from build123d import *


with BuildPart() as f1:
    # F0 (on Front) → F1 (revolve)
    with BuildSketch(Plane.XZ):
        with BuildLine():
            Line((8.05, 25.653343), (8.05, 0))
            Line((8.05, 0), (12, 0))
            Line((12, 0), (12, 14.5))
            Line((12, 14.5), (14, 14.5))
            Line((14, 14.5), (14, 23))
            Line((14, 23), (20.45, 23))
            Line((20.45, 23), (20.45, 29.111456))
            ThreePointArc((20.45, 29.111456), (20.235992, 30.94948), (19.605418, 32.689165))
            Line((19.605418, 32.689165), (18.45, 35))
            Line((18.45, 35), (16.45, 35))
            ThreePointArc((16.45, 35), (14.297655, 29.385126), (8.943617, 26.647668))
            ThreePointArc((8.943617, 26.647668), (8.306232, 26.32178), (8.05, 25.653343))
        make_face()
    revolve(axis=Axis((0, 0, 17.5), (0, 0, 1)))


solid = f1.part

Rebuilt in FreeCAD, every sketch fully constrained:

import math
import FreeCAD as App
import Part
import Sketcher
from FreeCAD import Vector

doc = App.newDocument("Part")
body = doc.addObject("PartDesign::Body", "Body")

# Sketch on XZ plane
sketch1 = body.newObject("Sketcher::SketchObject", "Sketch")
sketch1.AttachmentSupport = (doc.getObject("XZ_Plane"), [""])
sketch1.MapMode = "FlatFace"
sketch1.addGeometry(Part.LineSegment(Vector(8.1, 25.7, 0), Vector(8.1, 0, 0)), False)
sketch1.addGeometry(Part.LineSegment(Vector(8.1, 0, 0), Vector(12, 0, 0)), False)
sketch1.addGeometry(Part.LineSegment(Vector(12, 0, 0), Vector(12, 14.5, 0)), False)
sketch1.addGeometry(Part.LineSegment(Vector(12, 14.5, 0), Vector(14, 14.5, 0)), False)
sketch1.addGeometry(Part.LineSegment(Vector(14, 14.5, 0), Vector(14, 23, 0)), False)
sketch1.addGeometry(Part.LineSegment(Vector(14, 23, 0), Vector(20.4, 23, 0)), False)
sketch1.addGeometry(Part.LineSegment(Vector(20.4, 23, 0), Vector(20.4, 29.1, 0)), False)
sketch1.addGeometry(Part.ArcOfCircle(Part.Circle(Vector(12.4, 29.1, 0), Vector(0, 0, 1), 8), math.radians(0), math.radians(27)), False)
sketch1.addGeometry(Part.LineSegment(Vector(19.6, 32.7, 0), Vector(18.4, 35, 0)), False)
sketch1.addGeometry(Part.LineSegment(Vector(18.4, 35, 0), Vector(16.4, 35, 0)), False)
sketch1.addGeometry(Part.ArcOfCircle(Part.Circle(Vector(8.1, 35, 0), Vector(0, 0, 1), 8.4), math.radians(-84), math.radians(0)), False)
sketch1.addGeometry(Part.ArcOfCircle(Part.Circle(Vector(9.1, 25.7, 0), Vector(0, 0, 1), 1), math.radians(96), math.radians(180)), False)
sketch1.addConstraint(Sketcher.Constraint("Coincident", 0, 2, 1, 1))
sketch1.addConstraint(Sketcher.Constraint("Coincident", 1, 2, 2, 1))
sketch1.addConstraint(Sketcher.Constraint("Coincident", 2, 2, 3, 1))
sketch1.addConstraint(Sketcher.Constraint("Coincident", 3, 2, 4, 1))
sketch1.addConstraint(Sketcher.Constraint("Coincident", 4, 2, 5, 1))
sketch1.addConstraint(Sketcher.Constraint("Coincident", 5, 2, 6, 1))
sketch1.addConstraint(Sketcher.Constraint("Tangent", 6, 2, 7, 1))
sketch1.addConstraint(Sketcher.Constraint("Tangent", 7, 2, 8, 1))
sketch1.addConstraint(Sketcher.Constraint("Coincident", 8, 2, 9, 1))
sketch1.addConstraint(Sketcher.Constraint("Coincident", 9, 2, 10, 2))
sketch1.addConstraint(Sketcher.Constraint("Tangent", 10, 1, 11, 1))
sketch1.addConstraint(Sketcher.Constraint("Tangent", 11, 2, 0, 1))
sketch1.addConstraint(Sketcher.Constraint("Vertical", 0))
sketch1.addConstraint(Sketcher.Constraint("Horizontal", 1))
sketch1.addConstraint(Sketcher.Constraint("Vertical", 2))
sketch1.addConstraint(Sketcher.Constraint("Horizontal", 3))
sketch1.addConstraint(Sketcher.Constraint("Vertical", 4))
sketch1.addConstraint(Sketcher.Constraint("Horizontal", 5))
sketch1.addConstraint(Sketcher.Constraint("Vertical", 6))
sketch1.addConstraint(Sketcher.Constraint("Horizontal", 9))
sketch1.addConstraint(Sketcher.Constraint("PointOnObject", 0, 2, -1))
sketch1.addConstraint(Sketcher.Constraint("Horizontal", 10, 3, 8, 2))
sketch1.addConstraint(Sketcher.Constraint("Vertical", 10, 3, 0, 2))
sketch1.addConstraint(Sketcher.Constraint("Equal", 3, 9))
sketch1.addConstraint(Sketcher.Constraint("Radius", 7, 8.000002))
sketch1.addConstraint(Sketcher.Constraint("Radius", 11, 1.000001))
sketch1.addConstraint(Sketcher.Constraint("Radius", 10, 8.4))
sketch1.addConstraint(Sketcher.Constraint("DistanceX", 3, 1, 3, 2, 2.0))
sketch1.addConstraint(Sketcher.Constraint("DistanceY", 2, 1, 2, 2, 14.5))
sketch1.addConstraint(Sketcher.Constraint("DistanceY", 4, 1, 4, 2, 8.5))
sketch1.addConstraint(Sketcher.Constraint("DistanceY", -1, 1, 10, 3, 35.0))
sketch1.addConstraint(Sketcher.Constraint("DistanceX", -1, 1, 1, 2, 12.0))
sketch1.addConstraint(Sketcher.Constraint("DistanceX", 8, 2, 6, 2, 2.0))
sketch1.addConstraint(Sketcher.Constraint("DistanceX", 1, 1, 1, 2, 3.95))
sketch1.addConstraint(Sketcher.Constraint("DistanceY", 6, 1, 6, 2, 6.111456))
revolution = body.newObject("PartDesign::Revolution", "Revolution")
revolution.Profile = sketch1
revolution.ReferenceAxis = (sketch1, ["V_Axis"])
revolution.Angle = 360

doc.recompute()
